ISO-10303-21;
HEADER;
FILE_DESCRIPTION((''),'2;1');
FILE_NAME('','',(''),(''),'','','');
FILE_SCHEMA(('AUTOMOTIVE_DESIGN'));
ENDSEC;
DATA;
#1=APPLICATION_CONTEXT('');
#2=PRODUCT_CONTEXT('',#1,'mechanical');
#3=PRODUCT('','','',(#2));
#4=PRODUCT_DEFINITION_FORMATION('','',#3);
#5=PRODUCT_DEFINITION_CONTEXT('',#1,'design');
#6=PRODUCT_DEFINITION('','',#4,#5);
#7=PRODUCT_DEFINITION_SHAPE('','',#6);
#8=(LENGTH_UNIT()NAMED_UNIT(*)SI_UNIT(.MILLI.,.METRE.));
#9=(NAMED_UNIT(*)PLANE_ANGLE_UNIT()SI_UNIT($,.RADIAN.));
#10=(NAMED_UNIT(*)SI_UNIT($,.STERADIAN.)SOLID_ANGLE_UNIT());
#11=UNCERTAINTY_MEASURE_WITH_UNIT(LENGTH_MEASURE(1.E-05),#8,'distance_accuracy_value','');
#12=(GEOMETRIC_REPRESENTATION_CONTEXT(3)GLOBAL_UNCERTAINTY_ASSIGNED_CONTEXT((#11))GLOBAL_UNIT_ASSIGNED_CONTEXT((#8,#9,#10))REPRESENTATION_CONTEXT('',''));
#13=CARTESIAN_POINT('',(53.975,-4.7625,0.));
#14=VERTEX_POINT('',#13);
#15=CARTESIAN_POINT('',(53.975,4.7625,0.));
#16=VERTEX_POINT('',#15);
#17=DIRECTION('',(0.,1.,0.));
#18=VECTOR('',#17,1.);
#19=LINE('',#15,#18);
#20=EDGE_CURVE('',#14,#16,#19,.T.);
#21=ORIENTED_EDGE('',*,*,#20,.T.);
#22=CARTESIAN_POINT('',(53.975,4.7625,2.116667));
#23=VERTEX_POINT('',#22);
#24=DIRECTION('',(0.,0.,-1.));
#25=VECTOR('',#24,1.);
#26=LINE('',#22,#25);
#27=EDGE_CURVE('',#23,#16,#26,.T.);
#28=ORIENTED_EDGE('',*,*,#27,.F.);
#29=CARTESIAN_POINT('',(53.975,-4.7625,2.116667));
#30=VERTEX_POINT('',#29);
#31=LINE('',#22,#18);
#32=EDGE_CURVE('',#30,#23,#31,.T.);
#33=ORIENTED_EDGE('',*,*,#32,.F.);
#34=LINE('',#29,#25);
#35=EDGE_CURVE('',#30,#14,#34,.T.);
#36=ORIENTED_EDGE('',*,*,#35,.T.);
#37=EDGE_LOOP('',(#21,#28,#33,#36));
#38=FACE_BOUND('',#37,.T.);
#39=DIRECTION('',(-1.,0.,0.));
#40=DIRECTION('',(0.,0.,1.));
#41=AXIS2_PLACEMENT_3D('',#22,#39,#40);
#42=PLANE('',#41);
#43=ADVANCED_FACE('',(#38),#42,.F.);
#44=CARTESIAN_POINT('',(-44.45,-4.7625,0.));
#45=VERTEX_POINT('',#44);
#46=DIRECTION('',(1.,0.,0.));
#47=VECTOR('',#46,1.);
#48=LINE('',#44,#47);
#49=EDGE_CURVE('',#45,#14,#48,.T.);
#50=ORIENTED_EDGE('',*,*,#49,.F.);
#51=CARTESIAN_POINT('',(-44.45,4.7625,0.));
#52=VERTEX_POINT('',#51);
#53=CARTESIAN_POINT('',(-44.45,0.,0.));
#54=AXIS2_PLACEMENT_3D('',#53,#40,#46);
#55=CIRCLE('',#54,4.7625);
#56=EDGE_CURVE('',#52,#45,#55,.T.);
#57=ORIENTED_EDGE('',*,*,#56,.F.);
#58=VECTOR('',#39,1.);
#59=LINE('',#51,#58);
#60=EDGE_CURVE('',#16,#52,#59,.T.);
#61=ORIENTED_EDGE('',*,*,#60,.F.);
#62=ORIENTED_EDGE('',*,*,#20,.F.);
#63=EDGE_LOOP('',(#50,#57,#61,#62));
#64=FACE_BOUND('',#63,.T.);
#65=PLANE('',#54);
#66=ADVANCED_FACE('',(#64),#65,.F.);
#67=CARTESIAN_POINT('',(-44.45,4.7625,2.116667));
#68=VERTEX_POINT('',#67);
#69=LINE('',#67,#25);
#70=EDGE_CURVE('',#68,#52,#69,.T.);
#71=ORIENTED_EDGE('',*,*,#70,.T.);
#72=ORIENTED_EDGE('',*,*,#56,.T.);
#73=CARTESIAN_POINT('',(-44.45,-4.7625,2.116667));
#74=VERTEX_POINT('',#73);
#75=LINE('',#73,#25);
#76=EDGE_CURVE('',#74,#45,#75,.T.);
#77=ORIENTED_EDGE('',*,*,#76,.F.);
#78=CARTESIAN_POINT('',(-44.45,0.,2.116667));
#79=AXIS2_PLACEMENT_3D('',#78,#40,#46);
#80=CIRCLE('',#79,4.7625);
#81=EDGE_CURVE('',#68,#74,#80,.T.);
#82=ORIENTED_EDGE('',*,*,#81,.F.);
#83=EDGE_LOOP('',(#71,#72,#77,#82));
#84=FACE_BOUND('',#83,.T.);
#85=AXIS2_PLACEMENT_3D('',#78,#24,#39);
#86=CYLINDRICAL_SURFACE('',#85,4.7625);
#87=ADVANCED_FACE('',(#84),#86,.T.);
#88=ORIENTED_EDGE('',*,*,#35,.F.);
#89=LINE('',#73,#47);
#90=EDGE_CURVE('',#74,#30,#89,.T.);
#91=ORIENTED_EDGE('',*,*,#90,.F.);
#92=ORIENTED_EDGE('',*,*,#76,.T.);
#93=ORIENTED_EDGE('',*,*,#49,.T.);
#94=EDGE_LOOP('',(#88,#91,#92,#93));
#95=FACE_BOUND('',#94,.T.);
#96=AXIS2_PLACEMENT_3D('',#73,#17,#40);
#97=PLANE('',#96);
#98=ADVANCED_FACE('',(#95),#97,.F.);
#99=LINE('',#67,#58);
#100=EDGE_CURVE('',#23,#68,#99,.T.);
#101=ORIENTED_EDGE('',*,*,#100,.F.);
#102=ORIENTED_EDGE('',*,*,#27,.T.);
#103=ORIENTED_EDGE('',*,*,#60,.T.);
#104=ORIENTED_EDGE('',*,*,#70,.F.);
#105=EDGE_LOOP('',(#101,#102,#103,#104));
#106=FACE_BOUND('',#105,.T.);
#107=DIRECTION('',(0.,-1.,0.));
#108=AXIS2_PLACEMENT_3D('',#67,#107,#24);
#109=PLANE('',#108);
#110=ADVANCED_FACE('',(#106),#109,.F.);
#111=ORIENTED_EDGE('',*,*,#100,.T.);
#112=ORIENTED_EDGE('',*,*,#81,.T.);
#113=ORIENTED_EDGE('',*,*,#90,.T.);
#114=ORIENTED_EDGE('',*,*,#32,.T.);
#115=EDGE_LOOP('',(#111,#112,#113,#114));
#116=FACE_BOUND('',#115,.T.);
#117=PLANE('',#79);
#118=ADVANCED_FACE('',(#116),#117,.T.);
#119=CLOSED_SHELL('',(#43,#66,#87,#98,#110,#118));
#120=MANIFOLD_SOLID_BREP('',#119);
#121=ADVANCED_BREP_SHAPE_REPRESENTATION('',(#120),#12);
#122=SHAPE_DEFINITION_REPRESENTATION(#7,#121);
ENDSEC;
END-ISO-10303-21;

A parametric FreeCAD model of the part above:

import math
import FreeCAD as App
import Part
import Sketcher

V = App.Vector
Q = App.Units.Quantity

doc = App.newDocument("Part")
body = doc.addObject("PartDesign::Body", "Body")

# Sketch on XY plane
sketch1 = body.newObject("Sketcher::SketchObject", "Sketch")
sketch1.AttachmentSupport = (doc.getObject("XY_Plane"), [""])
sketch1.MapMode = "FlatFace"
sketch1.addGeometry([
    Part.LineSegment(V(54, 4.8, 0), V(-44.5, 4.8, 0)),
    Part.ArcOfCircle(Part.Circle(V(-44.5, 0, 0), V(0, 0, 1), 4.8), math.radians(90), math.radians(270)),
    Part.LineSegment(V(-44.5, -4.8, 0), V(54, -4.8, 0)),
    Part.LineSegment(V(54, -4.8, 0), V(54, 4.8, 0)),
], False)
sketch1.addConstraint([
    Sketcher.Constraint("Tangent", 0, 2, 1, 1),
    Sketcher.Constraint("Tangent", 1, 2, 2, 1),
    Sketcher.Constraint("Coincident", 2, 2, 3, 1),
    Sketcher.Constraint("Coincident", 3, 2, 0, 1),
    Sketcher.Constraint("Horizontal", 0),
    Sketcher.Constraint("Horizontal", 2),
    Sketcher.Constraint("Vertical", 3),
    Sketcher.Constraint("PointOnObject", 1, 3, -1),
    Sketcher.Constraint("Radius", 1, Q("0.1875 in")),
    Sketcher.Constraint("DistanceX", 0, 2, 0, 1, Q("3.875 in")),
    Sketcher.Constraint("DistanceX", 1, 3, -1, 1, Q("1.75 in")),
])
pad1 = body.newObject("PartDesign::Pad", "Pad")
pad1.Profile = sketch1
pad1.Length = 2.116667

doc.recompute()
